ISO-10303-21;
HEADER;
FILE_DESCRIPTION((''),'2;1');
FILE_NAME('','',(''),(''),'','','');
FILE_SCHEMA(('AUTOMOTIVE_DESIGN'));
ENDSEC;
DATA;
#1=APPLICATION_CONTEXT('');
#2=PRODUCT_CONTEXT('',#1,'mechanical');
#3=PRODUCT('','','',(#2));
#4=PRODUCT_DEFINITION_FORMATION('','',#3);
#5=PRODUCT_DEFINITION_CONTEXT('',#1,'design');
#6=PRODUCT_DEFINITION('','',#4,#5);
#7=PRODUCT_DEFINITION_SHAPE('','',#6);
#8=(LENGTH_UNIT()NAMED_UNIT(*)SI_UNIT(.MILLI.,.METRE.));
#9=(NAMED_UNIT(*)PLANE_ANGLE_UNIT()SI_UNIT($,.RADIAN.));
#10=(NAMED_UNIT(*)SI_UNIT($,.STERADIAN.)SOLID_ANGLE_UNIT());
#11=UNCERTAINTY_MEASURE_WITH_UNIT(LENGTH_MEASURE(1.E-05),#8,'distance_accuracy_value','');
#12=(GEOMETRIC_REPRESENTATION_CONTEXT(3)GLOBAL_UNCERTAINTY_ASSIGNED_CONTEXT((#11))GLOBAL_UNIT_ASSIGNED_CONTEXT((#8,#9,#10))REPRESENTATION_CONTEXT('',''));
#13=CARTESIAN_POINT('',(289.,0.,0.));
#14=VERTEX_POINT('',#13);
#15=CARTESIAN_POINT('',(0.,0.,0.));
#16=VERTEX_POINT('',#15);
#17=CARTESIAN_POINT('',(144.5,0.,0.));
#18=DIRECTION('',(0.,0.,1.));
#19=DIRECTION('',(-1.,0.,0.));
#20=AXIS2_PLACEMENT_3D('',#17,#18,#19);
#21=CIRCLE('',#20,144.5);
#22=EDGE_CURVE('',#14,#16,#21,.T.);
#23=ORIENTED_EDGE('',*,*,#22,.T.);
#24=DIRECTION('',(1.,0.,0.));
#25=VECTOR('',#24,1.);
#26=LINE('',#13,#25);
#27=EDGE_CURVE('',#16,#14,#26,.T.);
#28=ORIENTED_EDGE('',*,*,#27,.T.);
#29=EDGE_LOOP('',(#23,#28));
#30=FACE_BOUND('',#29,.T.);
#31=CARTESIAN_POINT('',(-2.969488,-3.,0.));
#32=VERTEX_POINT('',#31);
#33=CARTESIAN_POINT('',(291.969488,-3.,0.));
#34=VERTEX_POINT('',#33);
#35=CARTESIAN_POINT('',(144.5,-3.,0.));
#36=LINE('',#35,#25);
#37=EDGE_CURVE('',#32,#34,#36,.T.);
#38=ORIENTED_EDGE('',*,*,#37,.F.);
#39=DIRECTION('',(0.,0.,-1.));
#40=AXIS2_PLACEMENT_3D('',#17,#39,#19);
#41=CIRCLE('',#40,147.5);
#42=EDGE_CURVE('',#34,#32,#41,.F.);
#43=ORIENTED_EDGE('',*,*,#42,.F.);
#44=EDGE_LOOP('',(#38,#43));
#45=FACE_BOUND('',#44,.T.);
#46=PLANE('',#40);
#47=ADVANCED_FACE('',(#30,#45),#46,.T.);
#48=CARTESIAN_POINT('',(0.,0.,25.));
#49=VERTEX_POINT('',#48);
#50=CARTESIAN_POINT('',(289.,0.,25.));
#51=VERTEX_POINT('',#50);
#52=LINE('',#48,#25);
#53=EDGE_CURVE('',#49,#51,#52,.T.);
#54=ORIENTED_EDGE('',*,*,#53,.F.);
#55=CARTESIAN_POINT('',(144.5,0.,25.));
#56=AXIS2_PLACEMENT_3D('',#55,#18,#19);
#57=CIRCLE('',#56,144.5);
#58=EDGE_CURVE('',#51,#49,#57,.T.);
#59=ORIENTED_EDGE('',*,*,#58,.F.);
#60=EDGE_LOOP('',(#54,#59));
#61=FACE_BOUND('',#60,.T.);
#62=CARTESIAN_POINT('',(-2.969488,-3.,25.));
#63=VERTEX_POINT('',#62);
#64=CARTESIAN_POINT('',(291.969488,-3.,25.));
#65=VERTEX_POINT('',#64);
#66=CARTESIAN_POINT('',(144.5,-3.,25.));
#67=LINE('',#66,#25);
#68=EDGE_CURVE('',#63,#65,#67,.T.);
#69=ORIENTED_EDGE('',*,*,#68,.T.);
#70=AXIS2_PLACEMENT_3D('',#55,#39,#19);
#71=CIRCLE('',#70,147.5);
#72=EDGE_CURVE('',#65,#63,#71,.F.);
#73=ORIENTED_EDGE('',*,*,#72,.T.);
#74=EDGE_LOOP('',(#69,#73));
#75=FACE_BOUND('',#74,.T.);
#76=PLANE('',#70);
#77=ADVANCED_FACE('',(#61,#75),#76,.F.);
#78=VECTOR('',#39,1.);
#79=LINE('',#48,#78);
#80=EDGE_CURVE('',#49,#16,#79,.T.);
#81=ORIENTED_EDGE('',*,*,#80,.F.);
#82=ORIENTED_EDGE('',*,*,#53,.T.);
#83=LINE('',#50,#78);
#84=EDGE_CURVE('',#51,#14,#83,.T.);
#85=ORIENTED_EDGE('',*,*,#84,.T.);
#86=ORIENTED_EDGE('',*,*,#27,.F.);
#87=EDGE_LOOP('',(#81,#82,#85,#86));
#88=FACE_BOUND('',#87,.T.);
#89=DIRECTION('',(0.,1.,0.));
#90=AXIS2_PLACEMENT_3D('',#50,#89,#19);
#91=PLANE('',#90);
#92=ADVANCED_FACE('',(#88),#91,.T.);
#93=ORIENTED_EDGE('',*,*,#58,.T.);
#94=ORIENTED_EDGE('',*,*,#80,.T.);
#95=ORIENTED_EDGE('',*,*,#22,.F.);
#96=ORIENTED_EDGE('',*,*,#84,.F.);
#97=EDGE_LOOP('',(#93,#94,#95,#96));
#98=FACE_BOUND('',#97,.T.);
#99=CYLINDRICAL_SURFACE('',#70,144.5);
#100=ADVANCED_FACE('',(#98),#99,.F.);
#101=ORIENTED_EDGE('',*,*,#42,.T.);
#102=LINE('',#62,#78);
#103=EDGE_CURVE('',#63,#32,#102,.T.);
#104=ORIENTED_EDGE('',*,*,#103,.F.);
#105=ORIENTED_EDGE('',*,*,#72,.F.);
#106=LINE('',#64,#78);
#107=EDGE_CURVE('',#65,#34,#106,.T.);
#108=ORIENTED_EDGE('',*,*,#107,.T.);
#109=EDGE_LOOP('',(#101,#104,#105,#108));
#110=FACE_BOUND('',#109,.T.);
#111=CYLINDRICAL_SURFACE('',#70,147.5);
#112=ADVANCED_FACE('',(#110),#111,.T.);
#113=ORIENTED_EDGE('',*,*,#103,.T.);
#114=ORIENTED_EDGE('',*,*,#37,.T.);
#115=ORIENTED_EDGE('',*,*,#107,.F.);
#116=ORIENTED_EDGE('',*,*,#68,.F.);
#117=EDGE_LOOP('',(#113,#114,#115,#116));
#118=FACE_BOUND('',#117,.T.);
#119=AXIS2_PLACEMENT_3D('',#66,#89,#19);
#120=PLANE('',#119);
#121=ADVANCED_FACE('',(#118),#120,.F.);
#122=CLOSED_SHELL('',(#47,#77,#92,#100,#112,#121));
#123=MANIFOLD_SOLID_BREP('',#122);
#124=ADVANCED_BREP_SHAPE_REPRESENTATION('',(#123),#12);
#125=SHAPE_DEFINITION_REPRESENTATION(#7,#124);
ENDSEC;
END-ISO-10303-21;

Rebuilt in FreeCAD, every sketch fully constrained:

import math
import FreeCAD as App
import Part
import Sketcher
from FreeCAD import Vector
Q = App.Units.Quantity

doc = App.newDocument("Part")
body = doc.addObject("PartDesign::Body", "Body")

# Sketch on XY plane
sketch1 = body.newObject("Sketcher::SketchObject", "Sketch")
sketch1.AttachmentSupport = (doc.getObject("XY_Plane"), [""])
sketch1.MapMode = "FlatFace"
sketch1.addGeometry([
    Part.LineSegment(Vector(-3, -3, 0), Vector(292, -3, 0)),
    Part.ArcOfCircle(Part.Circle(Vector(144, 0, 0), Vector(0, 0, 1), 148), math.radians(-1), math.radians(181)),
    Part.LineSegment(Vector(289, 0, 0), Vector(0, 0, 0)),
    Part.ArcOfCircle(Part.Circle(Vector(144, 0, 0), Vector(0, 0, 1), 144), math.radians(0), math.radians(180)),
], False)
sketch1.addConstraint([
    Sketcher.Constraint("Coincident", 0, 1, 1, 2),
    Sketcher.Constraint("Coincident", 1, 1, 0, 2),
    Sketcher.Constraint("Coincident", 2, 1, 3, 1),
    Sketcher.Constraint("Coincident", 3, 2, 2, 2),
    Sketcher.Constraint("Horizontal", 0),
    Sketcher.Constraint("Horizontal", 2),
    Sketcher.Constraint("Coincident", 3, 2, -1, 1),
    Sketcher.Constraint("Coincident", 3, 3, 1, 3),
    Sketcher.Constraint("PointOnObject", 1, 3, -1),
    Sketcher.Constraint("Radius", 1, Q("147.5 mm")),
    Sketcher.Constraint("Radius", 3, Q("144.5 mm")),
    Sketcher.Constraint("DistanceY", 0, 1, -1, 1, Q("3 mm")),
])
pad1 = body.newObject("PartDesign::Pad", "Pad")
pad1.Profile = sketch1
pad1.Length = 25

doc.recompute()
